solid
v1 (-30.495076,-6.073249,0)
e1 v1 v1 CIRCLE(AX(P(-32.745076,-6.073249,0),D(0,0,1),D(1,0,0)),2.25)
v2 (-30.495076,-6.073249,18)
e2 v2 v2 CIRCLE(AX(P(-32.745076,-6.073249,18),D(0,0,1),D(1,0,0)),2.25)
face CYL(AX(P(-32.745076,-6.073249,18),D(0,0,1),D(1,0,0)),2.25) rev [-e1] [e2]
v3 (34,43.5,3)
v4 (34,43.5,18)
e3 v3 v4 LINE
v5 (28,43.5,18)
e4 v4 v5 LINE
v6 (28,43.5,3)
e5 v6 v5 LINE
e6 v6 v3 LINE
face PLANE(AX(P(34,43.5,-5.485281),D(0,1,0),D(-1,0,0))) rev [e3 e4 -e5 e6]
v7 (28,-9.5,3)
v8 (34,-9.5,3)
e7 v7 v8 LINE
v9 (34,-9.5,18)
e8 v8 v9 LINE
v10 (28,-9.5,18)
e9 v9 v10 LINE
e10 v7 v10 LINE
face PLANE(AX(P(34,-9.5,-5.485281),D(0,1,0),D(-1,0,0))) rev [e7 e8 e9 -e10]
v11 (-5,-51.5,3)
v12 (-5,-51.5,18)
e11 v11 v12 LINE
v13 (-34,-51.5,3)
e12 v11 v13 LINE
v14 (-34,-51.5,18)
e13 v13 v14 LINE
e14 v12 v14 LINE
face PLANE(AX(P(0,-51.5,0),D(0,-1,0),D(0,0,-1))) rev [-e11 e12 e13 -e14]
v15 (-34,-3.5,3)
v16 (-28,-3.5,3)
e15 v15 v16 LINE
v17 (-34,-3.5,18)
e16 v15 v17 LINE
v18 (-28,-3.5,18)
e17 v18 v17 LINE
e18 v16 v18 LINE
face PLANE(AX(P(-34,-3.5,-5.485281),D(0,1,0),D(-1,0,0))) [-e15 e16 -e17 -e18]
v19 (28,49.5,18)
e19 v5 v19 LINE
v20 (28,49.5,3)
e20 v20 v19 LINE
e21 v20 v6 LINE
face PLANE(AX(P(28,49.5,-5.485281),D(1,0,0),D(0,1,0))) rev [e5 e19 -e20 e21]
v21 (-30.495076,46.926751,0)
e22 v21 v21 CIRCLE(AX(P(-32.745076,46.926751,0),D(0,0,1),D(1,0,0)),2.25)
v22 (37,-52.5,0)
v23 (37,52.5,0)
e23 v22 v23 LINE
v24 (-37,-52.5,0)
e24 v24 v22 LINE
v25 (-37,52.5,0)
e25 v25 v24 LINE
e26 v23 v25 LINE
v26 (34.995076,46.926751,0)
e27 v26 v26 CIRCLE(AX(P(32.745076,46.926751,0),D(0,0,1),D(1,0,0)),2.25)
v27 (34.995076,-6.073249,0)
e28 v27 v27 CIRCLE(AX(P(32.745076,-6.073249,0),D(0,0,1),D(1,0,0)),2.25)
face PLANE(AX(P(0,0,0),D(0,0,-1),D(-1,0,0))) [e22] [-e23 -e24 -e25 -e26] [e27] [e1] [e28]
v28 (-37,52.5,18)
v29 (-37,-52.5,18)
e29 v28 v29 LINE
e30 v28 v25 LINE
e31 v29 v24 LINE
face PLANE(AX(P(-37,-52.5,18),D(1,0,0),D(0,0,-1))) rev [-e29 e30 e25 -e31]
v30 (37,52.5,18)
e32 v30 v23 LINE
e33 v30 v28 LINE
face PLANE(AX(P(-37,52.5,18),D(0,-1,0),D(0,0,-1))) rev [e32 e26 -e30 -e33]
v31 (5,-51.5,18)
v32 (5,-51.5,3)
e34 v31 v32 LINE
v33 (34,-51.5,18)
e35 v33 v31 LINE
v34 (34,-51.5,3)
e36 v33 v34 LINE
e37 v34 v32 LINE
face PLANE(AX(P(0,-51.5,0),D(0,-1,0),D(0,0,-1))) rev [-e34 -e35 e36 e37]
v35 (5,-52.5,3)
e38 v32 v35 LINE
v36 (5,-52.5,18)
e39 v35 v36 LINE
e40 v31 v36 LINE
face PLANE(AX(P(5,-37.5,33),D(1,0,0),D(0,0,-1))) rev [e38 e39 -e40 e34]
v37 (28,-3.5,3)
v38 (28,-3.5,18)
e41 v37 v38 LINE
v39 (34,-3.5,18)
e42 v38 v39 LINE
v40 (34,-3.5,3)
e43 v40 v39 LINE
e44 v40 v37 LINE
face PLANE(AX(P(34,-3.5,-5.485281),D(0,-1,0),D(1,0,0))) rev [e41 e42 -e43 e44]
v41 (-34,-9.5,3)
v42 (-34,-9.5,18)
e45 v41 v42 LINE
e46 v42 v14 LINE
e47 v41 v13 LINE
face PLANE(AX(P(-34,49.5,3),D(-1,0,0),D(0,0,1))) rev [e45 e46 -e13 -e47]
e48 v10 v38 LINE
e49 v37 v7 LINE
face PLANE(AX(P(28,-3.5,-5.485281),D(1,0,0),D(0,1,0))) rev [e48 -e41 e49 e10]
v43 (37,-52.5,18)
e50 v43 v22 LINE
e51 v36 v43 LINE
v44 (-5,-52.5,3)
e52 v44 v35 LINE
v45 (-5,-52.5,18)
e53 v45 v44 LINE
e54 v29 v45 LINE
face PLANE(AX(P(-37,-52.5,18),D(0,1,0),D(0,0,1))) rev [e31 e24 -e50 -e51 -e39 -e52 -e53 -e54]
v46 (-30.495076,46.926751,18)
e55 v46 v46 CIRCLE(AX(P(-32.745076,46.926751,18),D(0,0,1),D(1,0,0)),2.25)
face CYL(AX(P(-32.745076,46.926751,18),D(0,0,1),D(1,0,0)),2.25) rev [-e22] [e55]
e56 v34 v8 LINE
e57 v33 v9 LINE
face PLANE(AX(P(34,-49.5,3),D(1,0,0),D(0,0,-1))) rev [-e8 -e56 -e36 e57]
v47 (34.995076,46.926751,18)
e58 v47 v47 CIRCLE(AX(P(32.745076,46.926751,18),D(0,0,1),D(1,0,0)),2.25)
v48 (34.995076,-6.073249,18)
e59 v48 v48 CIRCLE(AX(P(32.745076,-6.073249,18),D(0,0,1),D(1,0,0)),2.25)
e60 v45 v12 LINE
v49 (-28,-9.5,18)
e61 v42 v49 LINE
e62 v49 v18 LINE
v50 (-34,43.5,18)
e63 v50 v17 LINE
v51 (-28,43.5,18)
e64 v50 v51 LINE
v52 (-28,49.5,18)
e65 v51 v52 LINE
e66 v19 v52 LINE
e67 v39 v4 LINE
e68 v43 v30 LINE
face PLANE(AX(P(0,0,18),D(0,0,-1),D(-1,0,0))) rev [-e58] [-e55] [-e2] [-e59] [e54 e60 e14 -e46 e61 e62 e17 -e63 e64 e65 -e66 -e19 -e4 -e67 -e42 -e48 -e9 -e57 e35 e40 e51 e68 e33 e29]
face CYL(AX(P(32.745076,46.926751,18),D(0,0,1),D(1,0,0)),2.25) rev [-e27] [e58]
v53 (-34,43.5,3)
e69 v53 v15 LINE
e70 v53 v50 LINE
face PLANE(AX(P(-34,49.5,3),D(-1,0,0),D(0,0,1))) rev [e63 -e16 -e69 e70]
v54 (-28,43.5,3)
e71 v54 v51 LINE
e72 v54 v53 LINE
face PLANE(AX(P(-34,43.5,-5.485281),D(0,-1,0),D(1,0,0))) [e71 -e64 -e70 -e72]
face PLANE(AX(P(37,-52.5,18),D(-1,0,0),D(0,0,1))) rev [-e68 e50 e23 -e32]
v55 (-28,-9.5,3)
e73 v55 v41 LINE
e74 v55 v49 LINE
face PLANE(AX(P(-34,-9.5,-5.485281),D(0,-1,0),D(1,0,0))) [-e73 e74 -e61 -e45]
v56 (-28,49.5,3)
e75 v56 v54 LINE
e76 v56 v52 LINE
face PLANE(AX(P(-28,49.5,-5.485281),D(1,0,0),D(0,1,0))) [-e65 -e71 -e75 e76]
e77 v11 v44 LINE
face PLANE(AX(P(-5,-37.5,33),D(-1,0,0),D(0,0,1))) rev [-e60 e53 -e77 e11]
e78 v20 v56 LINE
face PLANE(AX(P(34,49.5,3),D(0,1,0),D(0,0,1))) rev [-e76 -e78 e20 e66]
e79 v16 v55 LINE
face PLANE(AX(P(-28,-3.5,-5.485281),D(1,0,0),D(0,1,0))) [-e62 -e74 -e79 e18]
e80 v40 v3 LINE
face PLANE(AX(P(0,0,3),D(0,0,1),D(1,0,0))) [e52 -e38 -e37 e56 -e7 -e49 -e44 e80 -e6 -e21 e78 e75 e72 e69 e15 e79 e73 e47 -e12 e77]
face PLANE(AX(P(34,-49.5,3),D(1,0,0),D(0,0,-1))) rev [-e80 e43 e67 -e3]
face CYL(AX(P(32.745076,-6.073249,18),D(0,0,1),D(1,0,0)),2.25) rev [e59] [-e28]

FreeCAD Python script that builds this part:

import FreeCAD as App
import Part
import Sketcher

V = App.Vector


def add_polygon(sketch, points):
    """Adds a closed chain of lines whose ends are joined by coincident constraints."""
    first, n = sketch.GeometryCount, len(points)
    for a, b in zip(points, points[1:] + points[:1]):
        sketch.addGeometry(Part.LineSegment(App.Vector(*a, 0), App.Vector(*b, 0)), False)
    for i in range(n):
        sketch.addConstraint(Sketcher.Constraint("Coincident", first + i, 2, first + (i + 1) % n, 1))

doc = App.newDocument("Part")
body = doc.addObject("PartDesign::Body", "Body")

# Sketch on XY plane
sketch1 = doc.addObject("Sketcher::SketchObject", "Sketch")
body.addObject(sketch1)
sketch1.AttachmentSupport = (doc.XY_Plane, [""])
sketch1.MapMode = "FlatFace"
add_polygon(sketch1, [(-37, 52), (-37, -52), (37, -52), (37, 52)])  # lines 0-3
sketch1.addConstraint([
    Sketcher.Constraint("Vertical", 0),
    Sketcher.Constraint("Horizontal", 1),
    Sketcher.Constraint("Vertical", 2),
    Sketcher.Constraint("Horizontal", 3),
    Sketcher.Constraint("Symmetric", 0, 2, 2, 2, -1, 1),
    Sketcher.Constraint("DistanceX", 1, 1, 1, 2, 74.0),
    Sketcher.Constraint("DistanceY", 0, 2, 0, 1, 105.0),
])
pad1 = doc.addObject("PartDesign::Pad", "Pad")
body.addObject(pad1)
pad1.Profile = sketch1
pad1.Length = 18

# Sketch on XY plane
sketch2 = doc.addObject("Sketcher::SketchObject", "Sketch001")
body.addObject(sketch2)
sketch2.AttachmentSupport = (doc.XY_Plane, [""])
sketch2.MapMode = "FlatFace"
sketch2.AttachmentOffset = App.Placement(V(0, 0, 18), App.Rotation())
add_polygon(sketch2, [(-34, 50), (-34, -50), (34, -50), (34, 50)])  # lines 0-3
sketch2.addConstraint([
    Sketcher.Constraint("Vertical", 0),
    Sketcher.Constraint("Horizontal", 1),
    Sketcher.Constraint("Vertical", 2),
    Sketcher.Constraint("Horizontal", 3),
    Sketcher.Constraint("Symmetric", 0, 2, 2, 2, -1, 1),
    Sketcher.Constraint("DistanceX", 1, 1, 1, 2, 68.0),
    Sketcher.Constraint("DistanceY", 0, 2, 0, 1, 99.0),
])
pocket1 = doc.addObject("PartDesign::Pocket", "Pocket")
body.addObject(pocket1)
pocket1.Profile = sketch2
pocket1.Length = 15

# Sketch on XY plane
sketch3 = doc.addObject("Sketcher::SketchObject", "Sketch002")
body.addObject(sketch3)
sketch3.AttachmentSupport = (doc.XY_Plane, [""])
sketch3.MapMode = "FlatFace"
sketch3.AttachmentOffset = App.Placement(V(0, 0, 18), App.Rotation())
add_polygon(sketch3, [(-34, 50), (-34, 44), (-28, 44), (-28, 50)])  # lines 0-3
sketch3.addConstraint([
    Sketcher.Constraint("Vertical", 0),
    Sketcher.Constraint("Horizontal", 1),
    Sketcher.Constraint("Vertical", 2),
    Sketcher.Constraint("Horizontal", 3),
    Sketcher.Constraint("Equal", 3, 0),
    Sketcher.Constraint("DistanceX", 1, 1, 1, 2, 6.0),
    Sketcher.Constraint("DistanceX", 0, 2, -1, 1, 34.0),
    Sketcher.Constraint("DistanceY", -1, 1, 0, 2, 43.5),
])
pad2 = doc.addObject("PartDesign::Pad", "Pad001")
body.addObject(pad2)
pad2.Profile = sketch3
pad2.Length = 15
pad2.Reversed = True

# Sketch on XY plane
sketch4 = doc.addObject("Sketcher::SketchObject", "Sketch003")
body.addObject(sketch4)
sketch4.AttachmentSupport = (doc.XY_Plane, [""])
sketch4.MapMode = "FlatFace"
sketch4.AttachmentOffset = App.Placement(V(0, 0, 18), App.Rotation())
sketch4.addGeometry(Part.Circle(V(-32.7, 46.9, 0), V(0, 0, 1), 2.2), False)
sketch4.addConstraint([
    Sketcher.Constraint("Diameter", 0, 4.5),
    Sketcher.Constraint("DistanceY", -1, 1, 0, 3, 46.926751),
    Sketcher.Constraint("DistanceX", 0, 3, -1, 1, 32.745076),
])
doc.recompute()
hole = doc.addObject("PartDesign::Hole", "Hole")
body.addObject(hole)
hole.Profile = sketch4
hole.ThreadType = "None"
hole.Diameter = 4.5
hole.DepthType = "ThroughAll"

# Sketch on XZ plane
sketch5 = doc.addObject("Sketcher::SketchObject", "Sketch004")
body.addObject(sketch5)
sketch5.AttachmentSupport = (doc.XZ_Plane, [""])
sketch5.MapMode = "FlatFace"
sketch5.AttachmentOffset = App.Placement(V(0, 0, 52.5), App.Rotation())
add_polygon(sketch5, [(-5, 33), (-5, 3), (5, 3), (5, 33)])  # lines 0-3
sketch5.addConstraint([
    Sketcher.Constraint("Vertical", 0),
    Sketcher.Constraint("Horizontal", 1),
    Sketcher.Constraint("Vertical", 2),
    Sketcher.Constraint("Horizontal", 3),
    Sketcher.Constraint("DistanceX", 1, 1, 1, 2, 10.0),
    Sketcher.Constraint("DistanceY", 0, 2, 0, 1, 30.0),
    Sketcher.Constraint("DistanceX", 0, 2, -1, 1, 5.0),
    Sketcher.Constraint("DistanceY", -1, 1, 0, 2, 3.0),
])
pocket2 = doc.addObject("PartDesign::Pocket", "Pocket001")
body.addObject(pocket2)
pocket2.Profile = sketch5
pocket2.Length = 15
doc.recompute()

mirrored = doc.addObject("PartDesign::Mirrored", "Mirrored")
body.addObject(mirrored)
mirrored.Originals = [pad2, hole]
mirrored.MirrorPlane = (doc.YZ_Plane, [""])
body.Tip = mirrored
doc.recompute()

linearpattern = doc.addObject("PartDesign::LinearPattern", "LinearPattern")
body.addObject(linearpattern)
linearpattern.Originals = [pad2, hole]
linearpattern.Direction = (doc.Y_Axis, [""])
linearpattern.Mode = "offset"
linearpattern.Offset = 53
linearpattern.Occurrences = 2
linearpattern.Reversed = True
body.Tip = linearpattern

# Sketch on XY plane
sketch6 = doc.addObject("Sketcher::SketchObject", "Sketch005")
body.addObject(sketch6)
sketch6.AttachmentSupport = (doc.XY_Plane, [""])
sketch6.MapMode = "FlatFace"
sketch6.AttachmentOffset = App.Placement(V(0, 0, 18), App.Rotation())
add_polygon(sketch6, [(34, -10), (34, -4), (28, -4), (28, -10)])  # lines 0-3
sketch6.addConstraint([
    Sketcher.Constraint("Vertical", 0),
    Sketcher.Constraint("Horizontal", 1),
    Sketcher.Constraint("Vertical", 2),
    Sketcher.Constraint("Horizontal", 3),
    Sketcher.Constraint("Equal", 3, 0),
    Sketcher.Constraint("DistanceX", 1, 2, 1, 1, 6.0),
    Sketcher.Constraint("DistanceX", -1, 1, 0, 2, 34.0),
    Sketcher.Constraint("DistanceY", 0, 2, -1, 1, 3.5),
])
pad3 = doc.addObject("PartDesign::Pad", "Pad002")
body.addObject(pad3)
pad3.Profile = sketch6
pad3.Length = 15
pad3.Reversed = True

# Sketch on XY plane
sketch7 = doc.addObject("Sketcher::SketchObject", "Sketch006")
body.addObject(sketch7)
sketch7.AttachmentSupport = (doc.XY_Plane, [""])
sketch7.MapMode = "FlatFace"
sketch7.AttachmentOffset = App.Placement(V(0, 0, 18), App.Rotation())
sketch7.addGeometry(Part.Circle(V(32.7, -6.1, 0), V(0, 0, 1), 2.2), False)
sketch7.addConstraint([
    Sketcher.Constraint("Diameter", 0, 4.5),
    Sketcher.Constraint("DistanceY", 0, 3, -1, 1, 6.073249),
    Sketcher.Constraint("DistanceX", -1, 1, 0, 3, 32.745076),
])
doc.recompute()
hole2 = doc.addObject("PartDesign::Hole", "Hole001")
body.addObject(hole2)
hole2.Profile = sketch7
hole2.ThreadType = "None"
hole2.Diameter = 4.5
hole2.DepthType = "ThroughAll"

# Sketch on XZ plane
sketch8 = doc.addObject("Sketcher::SketchObject", "Sketch007")
body.addObject(sketch8)
sketch8.AttachmentSupport = (doc.XZ_Plane, [""])
sketch8.MapMode = "FlatFace"
sketch8.AttachmentOffset = App.Placement(V(0, 0, 49.5), App.Rotation())
add_polygon(sketch8, [(-34, 3), (-34, 37), (34, 37), (34, 3)])  # lines 0-3
sketch8.addConstraint([
    Sketcher.Constraint("Vertical", 0),
    Sketcher.Constraint("Horizontal", 1),
    Sketcher.Constraint("Vertical", 2),
    Sketcher.Constraint("Horizontal", 3),
    Sketcher.Constraint("DistanceX", 1, 1, 1, 2, 68.0),
    Sketcher.Constraint("DistanceX", 0, 2, -1, 1, 34.0),
    Sketcher.Constraint("DistanceY", -1, 1, 2, 2, 3.0),
    Sketcher.Constraint("DistanceY", 0, 1, 0, 2, 33.530287),
])
pocket3 = doc.addObject("PartDesign::Pocket", "Pocket002")
body.addObject(pocket3)
pocket3.Profile = sketch8
pocket3.Length = 2
pocket3.Reversed = True

doc.recompute()
